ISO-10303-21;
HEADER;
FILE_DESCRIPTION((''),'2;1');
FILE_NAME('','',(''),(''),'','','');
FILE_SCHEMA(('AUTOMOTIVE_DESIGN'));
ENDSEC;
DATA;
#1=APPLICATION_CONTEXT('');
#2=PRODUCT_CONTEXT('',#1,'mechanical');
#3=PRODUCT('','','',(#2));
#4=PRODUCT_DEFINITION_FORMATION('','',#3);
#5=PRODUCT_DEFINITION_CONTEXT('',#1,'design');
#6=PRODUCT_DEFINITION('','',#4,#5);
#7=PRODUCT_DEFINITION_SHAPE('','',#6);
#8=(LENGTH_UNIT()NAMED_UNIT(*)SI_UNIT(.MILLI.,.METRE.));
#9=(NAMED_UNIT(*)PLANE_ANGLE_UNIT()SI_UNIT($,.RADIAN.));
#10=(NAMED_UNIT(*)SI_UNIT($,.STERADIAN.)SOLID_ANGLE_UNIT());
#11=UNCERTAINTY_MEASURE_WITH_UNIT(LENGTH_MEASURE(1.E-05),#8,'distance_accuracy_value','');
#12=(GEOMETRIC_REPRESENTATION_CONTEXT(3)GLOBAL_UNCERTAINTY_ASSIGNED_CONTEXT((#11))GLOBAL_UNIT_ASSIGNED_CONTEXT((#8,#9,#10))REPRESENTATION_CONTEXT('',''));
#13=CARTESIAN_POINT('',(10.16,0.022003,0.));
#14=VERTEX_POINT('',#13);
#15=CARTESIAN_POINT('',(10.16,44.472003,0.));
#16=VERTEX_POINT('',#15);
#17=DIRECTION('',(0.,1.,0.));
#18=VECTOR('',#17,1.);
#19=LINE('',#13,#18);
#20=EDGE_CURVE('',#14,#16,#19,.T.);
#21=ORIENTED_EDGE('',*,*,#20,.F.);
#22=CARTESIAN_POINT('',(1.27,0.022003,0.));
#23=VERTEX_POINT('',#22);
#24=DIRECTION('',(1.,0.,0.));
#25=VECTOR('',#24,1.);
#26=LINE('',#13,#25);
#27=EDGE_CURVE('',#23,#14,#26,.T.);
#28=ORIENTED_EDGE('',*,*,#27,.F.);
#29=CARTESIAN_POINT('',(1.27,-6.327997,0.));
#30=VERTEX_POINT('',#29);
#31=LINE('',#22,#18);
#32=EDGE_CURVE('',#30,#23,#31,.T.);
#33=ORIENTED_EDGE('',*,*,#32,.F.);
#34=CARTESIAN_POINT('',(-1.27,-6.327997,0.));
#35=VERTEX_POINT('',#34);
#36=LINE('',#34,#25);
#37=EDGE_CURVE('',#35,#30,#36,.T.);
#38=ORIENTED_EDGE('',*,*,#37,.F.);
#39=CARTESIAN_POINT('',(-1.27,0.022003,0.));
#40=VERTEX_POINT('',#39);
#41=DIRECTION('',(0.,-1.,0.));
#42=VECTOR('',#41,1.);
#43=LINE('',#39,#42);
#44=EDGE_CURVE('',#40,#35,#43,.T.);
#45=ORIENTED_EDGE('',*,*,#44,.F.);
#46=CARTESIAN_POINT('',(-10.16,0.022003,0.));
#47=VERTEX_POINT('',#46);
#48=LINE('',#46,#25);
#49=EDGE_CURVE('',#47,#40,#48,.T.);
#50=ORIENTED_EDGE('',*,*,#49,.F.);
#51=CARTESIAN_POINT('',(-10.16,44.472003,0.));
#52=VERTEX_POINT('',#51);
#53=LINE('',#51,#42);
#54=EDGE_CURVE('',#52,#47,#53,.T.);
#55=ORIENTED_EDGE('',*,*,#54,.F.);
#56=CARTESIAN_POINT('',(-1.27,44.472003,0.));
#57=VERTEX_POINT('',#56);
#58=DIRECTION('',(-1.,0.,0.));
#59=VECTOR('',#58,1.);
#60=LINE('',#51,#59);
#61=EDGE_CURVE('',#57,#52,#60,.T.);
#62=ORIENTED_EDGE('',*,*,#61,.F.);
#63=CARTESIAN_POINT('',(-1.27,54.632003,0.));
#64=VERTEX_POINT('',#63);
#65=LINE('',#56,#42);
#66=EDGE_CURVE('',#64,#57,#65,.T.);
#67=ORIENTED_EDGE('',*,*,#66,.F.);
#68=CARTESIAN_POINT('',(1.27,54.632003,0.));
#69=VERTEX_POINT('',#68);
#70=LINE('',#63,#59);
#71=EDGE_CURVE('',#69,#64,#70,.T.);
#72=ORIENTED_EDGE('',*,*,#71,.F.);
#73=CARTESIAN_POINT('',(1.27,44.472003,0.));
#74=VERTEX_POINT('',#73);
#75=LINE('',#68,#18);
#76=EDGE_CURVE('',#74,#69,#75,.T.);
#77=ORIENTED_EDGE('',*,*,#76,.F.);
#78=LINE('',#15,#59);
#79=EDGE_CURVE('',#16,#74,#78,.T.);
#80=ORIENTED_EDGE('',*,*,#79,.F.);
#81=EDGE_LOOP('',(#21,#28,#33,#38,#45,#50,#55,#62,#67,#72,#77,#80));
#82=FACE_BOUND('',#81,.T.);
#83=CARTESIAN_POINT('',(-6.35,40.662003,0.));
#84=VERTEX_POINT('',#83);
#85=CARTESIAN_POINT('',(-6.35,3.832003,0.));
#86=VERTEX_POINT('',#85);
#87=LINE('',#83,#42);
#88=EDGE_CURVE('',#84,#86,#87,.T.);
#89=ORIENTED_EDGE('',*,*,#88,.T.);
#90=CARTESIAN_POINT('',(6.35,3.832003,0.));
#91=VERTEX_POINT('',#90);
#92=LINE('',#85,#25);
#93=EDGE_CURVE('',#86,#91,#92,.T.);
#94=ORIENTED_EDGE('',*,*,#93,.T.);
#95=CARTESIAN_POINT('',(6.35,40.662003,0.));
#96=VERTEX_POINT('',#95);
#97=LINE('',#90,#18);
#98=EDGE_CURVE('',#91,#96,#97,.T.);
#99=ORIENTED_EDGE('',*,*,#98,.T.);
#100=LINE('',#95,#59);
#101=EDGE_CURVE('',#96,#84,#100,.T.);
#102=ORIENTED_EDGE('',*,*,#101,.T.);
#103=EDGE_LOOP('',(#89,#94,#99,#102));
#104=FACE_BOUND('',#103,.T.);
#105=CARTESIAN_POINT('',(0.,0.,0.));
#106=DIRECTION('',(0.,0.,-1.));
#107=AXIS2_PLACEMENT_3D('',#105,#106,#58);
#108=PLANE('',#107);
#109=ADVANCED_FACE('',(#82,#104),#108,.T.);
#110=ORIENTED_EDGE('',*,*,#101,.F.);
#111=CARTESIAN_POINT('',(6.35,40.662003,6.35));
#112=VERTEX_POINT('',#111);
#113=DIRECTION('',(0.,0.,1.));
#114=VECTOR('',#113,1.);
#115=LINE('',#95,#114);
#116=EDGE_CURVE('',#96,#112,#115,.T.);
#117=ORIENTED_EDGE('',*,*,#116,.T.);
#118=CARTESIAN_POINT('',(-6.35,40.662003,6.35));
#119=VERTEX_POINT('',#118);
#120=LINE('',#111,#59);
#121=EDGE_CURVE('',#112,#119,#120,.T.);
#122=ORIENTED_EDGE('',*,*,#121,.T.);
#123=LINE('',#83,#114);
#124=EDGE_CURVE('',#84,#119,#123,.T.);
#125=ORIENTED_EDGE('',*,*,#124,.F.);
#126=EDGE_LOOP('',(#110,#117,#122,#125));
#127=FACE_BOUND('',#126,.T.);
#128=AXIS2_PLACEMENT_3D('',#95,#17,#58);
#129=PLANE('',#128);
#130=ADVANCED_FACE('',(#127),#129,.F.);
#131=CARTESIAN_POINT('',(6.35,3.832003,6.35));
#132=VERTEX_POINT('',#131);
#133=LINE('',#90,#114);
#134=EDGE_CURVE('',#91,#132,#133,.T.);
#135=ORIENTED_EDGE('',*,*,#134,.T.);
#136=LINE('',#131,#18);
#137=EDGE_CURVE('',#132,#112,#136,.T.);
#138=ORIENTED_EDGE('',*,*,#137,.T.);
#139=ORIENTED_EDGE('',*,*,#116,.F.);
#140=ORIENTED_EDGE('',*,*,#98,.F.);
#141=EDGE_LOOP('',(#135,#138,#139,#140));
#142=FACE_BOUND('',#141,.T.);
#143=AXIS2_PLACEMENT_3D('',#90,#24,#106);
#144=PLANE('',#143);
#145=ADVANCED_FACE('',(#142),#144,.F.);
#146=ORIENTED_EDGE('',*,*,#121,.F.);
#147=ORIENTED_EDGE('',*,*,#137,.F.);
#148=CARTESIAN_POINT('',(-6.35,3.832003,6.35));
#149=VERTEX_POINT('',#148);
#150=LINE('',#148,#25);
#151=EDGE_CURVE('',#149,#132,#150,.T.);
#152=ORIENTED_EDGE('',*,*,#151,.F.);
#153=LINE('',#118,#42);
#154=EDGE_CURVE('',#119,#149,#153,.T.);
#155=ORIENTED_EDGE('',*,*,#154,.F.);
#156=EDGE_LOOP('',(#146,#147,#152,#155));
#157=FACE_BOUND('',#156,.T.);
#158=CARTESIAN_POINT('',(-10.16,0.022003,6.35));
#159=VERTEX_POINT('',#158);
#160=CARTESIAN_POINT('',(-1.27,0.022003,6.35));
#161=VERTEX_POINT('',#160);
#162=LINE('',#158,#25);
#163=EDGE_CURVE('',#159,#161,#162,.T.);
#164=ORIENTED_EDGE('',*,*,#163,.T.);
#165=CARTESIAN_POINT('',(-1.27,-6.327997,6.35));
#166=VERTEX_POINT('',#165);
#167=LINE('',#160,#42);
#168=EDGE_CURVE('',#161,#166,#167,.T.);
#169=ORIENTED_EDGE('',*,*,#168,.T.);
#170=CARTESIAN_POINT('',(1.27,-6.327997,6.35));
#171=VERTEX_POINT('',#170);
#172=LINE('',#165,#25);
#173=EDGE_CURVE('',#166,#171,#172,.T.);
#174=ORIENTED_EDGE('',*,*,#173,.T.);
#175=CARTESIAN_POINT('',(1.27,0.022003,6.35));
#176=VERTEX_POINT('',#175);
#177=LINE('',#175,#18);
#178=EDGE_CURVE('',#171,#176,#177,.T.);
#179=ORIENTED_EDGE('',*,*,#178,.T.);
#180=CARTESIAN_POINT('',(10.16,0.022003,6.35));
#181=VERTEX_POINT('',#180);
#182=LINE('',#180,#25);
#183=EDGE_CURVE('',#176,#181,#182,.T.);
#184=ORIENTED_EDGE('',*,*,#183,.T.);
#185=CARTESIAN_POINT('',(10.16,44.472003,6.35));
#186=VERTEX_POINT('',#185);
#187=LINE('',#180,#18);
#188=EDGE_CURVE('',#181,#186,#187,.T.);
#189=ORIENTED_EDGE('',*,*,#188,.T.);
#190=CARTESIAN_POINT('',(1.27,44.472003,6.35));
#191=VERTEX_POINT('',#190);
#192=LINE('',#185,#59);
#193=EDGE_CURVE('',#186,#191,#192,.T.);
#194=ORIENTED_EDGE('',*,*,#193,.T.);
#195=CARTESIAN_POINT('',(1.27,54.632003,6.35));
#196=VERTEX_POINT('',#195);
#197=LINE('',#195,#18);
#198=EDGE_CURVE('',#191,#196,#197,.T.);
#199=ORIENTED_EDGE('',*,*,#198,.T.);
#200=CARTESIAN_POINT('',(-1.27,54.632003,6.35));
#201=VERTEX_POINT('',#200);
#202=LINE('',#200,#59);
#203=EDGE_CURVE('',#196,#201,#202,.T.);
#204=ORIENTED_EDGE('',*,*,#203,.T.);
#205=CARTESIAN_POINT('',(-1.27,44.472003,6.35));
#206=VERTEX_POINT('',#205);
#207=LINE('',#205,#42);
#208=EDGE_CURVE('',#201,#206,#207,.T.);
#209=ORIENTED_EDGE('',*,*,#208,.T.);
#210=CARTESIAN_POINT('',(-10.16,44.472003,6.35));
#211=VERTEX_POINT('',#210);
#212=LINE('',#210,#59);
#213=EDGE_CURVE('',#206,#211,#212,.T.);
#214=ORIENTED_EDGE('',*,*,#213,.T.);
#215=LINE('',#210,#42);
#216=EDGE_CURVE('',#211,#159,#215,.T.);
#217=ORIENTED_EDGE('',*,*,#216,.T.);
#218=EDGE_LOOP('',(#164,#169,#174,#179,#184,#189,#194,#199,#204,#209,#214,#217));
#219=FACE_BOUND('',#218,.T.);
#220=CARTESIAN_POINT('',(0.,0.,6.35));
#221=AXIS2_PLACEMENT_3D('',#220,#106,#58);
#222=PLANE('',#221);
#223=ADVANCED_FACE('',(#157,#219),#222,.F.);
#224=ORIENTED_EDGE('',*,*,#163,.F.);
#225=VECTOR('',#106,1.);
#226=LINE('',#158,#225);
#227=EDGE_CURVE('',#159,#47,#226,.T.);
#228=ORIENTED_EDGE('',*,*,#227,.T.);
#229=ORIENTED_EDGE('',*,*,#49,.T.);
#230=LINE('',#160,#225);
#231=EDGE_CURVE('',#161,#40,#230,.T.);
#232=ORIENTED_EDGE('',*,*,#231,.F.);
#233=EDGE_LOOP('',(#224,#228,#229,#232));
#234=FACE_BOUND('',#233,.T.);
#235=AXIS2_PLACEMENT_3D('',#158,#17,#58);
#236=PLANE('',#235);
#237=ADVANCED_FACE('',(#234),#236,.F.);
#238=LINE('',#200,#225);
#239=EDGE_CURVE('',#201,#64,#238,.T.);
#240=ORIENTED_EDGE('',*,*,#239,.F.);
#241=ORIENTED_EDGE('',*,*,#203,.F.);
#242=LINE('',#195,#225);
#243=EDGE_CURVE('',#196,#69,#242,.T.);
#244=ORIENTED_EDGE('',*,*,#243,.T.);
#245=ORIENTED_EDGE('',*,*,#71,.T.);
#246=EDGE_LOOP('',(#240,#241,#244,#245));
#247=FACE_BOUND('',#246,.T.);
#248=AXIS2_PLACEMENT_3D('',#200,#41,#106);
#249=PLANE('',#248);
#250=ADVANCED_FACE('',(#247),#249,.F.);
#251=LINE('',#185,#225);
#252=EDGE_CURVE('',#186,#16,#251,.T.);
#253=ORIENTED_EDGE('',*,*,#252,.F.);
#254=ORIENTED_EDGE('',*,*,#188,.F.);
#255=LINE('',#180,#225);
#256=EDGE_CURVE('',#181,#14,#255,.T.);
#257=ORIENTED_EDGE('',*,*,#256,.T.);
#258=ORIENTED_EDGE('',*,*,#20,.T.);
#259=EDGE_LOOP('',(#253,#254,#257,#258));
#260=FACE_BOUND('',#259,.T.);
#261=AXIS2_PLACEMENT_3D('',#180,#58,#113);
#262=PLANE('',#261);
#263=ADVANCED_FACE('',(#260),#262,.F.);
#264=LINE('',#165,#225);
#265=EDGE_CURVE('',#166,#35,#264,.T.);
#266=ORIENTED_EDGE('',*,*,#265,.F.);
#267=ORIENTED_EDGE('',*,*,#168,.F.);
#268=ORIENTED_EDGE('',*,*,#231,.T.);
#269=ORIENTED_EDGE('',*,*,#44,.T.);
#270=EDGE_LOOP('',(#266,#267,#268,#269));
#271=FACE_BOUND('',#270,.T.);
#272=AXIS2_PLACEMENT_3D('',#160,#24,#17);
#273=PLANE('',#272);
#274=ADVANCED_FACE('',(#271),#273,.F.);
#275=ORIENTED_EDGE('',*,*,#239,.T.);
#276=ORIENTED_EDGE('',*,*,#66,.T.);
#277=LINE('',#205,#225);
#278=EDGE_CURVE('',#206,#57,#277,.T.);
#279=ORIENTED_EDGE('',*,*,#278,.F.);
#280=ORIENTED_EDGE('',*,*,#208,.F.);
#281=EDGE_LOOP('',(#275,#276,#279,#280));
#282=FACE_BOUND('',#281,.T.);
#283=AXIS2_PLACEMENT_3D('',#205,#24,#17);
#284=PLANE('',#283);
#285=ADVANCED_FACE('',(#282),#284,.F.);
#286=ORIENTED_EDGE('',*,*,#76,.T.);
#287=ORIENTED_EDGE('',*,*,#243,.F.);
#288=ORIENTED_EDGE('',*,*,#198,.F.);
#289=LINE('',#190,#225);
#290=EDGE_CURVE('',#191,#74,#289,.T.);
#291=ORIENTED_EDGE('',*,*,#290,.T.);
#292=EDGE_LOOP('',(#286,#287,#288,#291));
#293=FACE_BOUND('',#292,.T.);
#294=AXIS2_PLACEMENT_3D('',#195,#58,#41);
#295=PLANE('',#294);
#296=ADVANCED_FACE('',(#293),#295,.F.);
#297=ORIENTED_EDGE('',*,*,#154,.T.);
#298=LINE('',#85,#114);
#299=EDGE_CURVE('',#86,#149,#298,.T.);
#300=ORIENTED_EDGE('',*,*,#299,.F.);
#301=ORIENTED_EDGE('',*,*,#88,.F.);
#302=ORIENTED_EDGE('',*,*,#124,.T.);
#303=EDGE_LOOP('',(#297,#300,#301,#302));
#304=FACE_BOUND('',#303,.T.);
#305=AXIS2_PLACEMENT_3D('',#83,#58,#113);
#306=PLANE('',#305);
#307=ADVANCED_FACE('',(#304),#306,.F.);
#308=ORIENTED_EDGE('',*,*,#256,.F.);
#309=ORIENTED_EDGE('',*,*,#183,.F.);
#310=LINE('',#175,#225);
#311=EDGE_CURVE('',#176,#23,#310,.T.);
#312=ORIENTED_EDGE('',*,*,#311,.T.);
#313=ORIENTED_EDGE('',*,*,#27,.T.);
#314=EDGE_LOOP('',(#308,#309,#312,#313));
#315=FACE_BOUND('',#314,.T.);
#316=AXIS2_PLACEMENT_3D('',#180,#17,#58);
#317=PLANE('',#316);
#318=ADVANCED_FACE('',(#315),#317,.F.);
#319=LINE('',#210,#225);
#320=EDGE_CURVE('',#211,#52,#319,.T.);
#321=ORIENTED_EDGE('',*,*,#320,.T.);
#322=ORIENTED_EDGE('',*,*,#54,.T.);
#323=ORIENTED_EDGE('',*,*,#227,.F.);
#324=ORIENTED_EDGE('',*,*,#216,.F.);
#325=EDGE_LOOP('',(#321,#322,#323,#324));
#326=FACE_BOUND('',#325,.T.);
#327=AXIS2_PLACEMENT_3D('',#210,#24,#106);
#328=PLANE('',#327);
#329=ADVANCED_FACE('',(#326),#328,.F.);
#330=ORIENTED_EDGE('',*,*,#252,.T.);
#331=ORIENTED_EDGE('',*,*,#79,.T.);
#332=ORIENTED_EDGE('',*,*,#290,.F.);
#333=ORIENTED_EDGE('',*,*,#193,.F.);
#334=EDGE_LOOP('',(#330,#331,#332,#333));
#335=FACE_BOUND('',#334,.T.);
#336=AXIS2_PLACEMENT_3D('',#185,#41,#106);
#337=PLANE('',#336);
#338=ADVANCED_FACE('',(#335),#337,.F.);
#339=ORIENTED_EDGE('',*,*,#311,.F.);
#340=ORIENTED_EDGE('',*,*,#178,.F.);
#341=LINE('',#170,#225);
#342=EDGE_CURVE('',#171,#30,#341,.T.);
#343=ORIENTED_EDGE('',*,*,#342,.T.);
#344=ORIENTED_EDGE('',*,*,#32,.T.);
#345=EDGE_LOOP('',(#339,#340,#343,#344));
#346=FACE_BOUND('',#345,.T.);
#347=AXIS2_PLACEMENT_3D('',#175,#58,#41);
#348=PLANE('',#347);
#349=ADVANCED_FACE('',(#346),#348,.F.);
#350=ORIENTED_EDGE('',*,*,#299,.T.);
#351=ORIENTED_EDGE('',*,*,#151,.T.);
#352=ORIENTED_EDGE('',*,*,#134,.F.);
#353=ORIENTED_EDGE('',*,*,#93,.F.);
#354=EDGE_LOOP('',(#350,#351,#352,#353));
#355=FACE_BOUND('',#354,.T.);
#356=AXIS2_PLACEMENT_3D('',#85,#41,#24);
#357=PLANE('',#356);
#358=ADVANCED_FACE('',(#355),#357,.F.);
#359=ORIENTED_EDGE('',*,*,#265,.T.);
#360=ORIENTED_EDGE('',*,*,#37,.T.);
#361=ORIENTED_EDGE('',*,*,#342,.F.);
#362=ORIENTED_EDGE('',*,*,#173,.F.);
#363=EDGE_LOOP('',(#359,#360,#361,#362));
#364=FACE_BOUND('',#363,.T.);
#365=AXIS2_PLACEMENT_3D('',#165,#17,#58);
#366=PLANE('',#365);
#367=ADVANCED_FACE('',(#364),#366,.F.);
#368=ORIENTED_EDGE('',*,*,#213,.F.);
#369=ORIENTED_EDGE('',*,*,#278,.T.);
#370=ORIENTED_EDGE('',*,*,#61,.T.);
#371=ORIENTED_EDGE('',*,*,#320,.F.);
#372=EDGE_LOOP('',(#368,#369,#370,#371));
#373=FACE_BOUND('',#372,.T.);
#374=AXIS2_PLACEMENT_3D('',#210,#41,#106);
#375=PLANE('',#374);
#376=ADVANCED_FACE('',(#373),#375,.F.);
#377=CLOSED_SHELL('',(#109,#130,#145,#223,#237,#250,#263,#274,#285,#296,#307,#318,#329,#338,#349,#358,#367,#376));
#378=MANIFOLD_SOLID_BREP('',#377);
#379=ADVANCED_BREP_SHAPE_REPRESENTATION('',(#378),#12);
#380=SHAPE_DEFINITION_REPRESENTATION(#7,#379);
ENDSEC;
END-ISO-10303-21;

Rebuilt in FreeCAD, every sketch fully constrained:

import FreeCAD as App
import Part
import Sketcher

V = App.Vector
Q = App.Units.Quantity


def add_polygon(sketch, points):
    """Adds a closed chain of lines whose ends are joined by coincident constraints."""
    first, n = sketch.GeometryCount, len(points)
    for a, b in zip(points, points[1:] + points[:1]):
        sketch.addGeometry(Part.LineSegment(App.Vector(*a, 0), App.Vector(*b, 0)), False)
    for i in range(n):
        sketch.addConstraint(Sketcher.Constraint("Coincident", first + i, 2, first + (i + 1) % n, 1))

doc = App.newDocument("Part")
body = doc.addObject("PartDesign::Body", "Body")

# Sketch on XY plane
sketch1 = body.newObject("Sketcher::SketchObject", "Sketch")
sketch1.AttachmentSupport = (doc.getObject("XY_Plane"), [""])
sketch1.MapMode = "FlatFace"
add_polygon(sketch1, [(10.16, 0.022003), (10.16, 44.472003), (1.27, 44.472003), (1.27, 54.632003), (-1.27, 54.632003), (-1.27, 44.472003), (-10.16, 44.472003), (-10.16, 0.022003), (-1.27, 0.022003), (-1.27, -6.327997), (1.27, -6.327997), (1.27, 0.022003)])  # lines 0-11
sketch1.addConstraint([
    Sketcher.Constraint("Vertical", 0),
    Sketcher.Constraint("Horizontal", 1),
    Sketcher.Constraint("Vertical", 2),
    Sketcher.Constraint("Horizontal", 3),
    Sketcher.Constraint("Vertical", 4),
    Sketcher.Constraint("Horizontal", 5),
    Sketcher.Constraint("Vertical", 6),
    Sketcher.Constraint("Horizontal", 7),
    Sketcher.Constraint("Vertical", 8),
    Sketcher.Constraint("Horizontal", 9),
    Sketcher.Constraint("Vertical", 10),
    Sketcher.Constraint("Horizontal", 11),
    Sketcher.Constraint("Symmetric", 1, 2, 4, 2, -2),
    Sketcher.Constraint("Symmetric", 7, 2, 10, 2, -2),
    Sketcher.Constraint("Vertical", 4, 2, 7, 2),
    Sketcher.Constraint("Equal", 1, 5),
    Sketcher.Constraint("DistanceX", 3, 2, 3, 1, Q("0.1 in")),
    Sketcher.Constraint("DistanceY", 2, 1, 2, 2, Q("0.4 in")),
    Sketcher.Constraint("DistanceY", 8, 2, 4, 2, Q("2 in")),
    Sketcher.Constraint("DistanceX", 1, 2, 1, 1, Q("0.35 in")),
    Sketcher.Constraint("DistanceY", 0, 1, 0, 2, Q("1.75 in")),
    Sketcher.Constraint("DistanceY", -1, 1, 0, 2, Q("44.472003 mm")),
])
pad1 = body.newObject("PartDesign::Pad", "Pad")
pad1.Profile = sketch1
pad1.Length = Q("0.25 in")

# Sketch on XY plane
sketch2 = body.newObject("Sketcher::SketchObject", "Sketch001")
sketch2.AttachmentSupport = (doc.getObject("XY_Plane"), [""])
sketch2.MapMode = "FlatFace"
sketch2.AttachmentOffset = App.Placement(V(0, 0, 0.25 * 25.4), App.Rotation())
add_polygon(sketch2, [(-6.35, 40.662003), (-6.35, 3.832003), (6.35, 3.832003), (6.35, 40.662003)])  # lines 0-3
sketch2.addConstraint([
    Sketcher.Constraint("Vertical", 0),
    Sketcher.Constraint("Horizontal", 1),
    Sketcher.Constraint("Vertical", 2),
    Sketcher.Constraint("Horizontal", 3),
    Sketcher.Constraint("DistanceX", 1, 1, 1, 2, Q("0.5 in")),
    Sketcher.Constraint("DistanceY", 0, 2, 0, 1, Q("1.45 in")),
    Sketcher.Constraint("DistanceX", 0, 2, -1, 1, Q("0.25 in")),
    Sketcher.Constraint("DistanceY", -1, 1, 0, 2, Q("3.832003 mm")),
])
pocket1 = body.newObject("PartDesign::Pocket", "Pocket")
pocket1.Profile = sketch2
pocket1.Length = Q("0.25 in")

doc.recompute()
